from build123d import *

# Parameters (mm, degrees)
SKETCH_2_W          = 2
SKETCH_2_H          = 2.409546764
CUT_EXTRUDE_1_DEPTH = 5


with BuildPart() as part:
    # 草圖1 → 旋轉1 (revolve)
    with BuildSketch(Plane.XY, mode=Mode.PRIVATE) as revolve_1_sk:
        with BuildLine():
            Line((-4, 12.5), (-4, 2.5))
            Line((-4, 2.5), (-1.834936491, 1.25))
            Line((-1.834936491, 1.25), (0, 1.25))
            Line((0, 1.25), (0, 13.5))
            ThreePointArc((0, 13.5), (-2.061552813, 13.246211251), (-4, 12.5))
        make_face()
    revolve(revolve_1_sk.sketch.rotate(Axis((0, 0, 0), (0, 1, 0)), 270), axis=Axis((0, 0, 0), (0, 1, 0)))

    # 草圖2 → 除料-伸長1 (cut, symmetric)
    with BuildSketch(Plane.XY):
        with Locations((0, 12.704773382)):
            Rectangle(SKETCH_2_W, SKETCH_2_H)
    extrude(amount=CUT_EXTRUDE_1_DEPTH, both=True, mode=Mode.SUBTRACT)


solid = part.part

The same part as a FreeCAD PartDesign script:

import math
import FreeCAD as App
import Part
import Sketcher
Q = App.Units.Quantity

doc = App.newDocument("Part")
body = doc.addObject("PartDesign::Body", "Body")

sketch1 = body.newObject("Sketcher::SketchObject", "Sketch")
sketch1.AttachmentSupport = (doc.getObject("XY_Plane"), [""])
sketch1.MapMode = "FlatFace"
sketch1.addGeometry([
    Part.LineSegment(App.Vector(-4, 12.5, 0), App.Vector(-4, 2.5, 0)),
    Part.LineSegment(App.Vector(-4, 2.5, 0), App.Vector(-1.834936, 1.25, 0)),
    Part.LineSegment(App.Vector(-1.834936, 1.25, 0), App.Vector(0, 1.25, 0)),
    Part.LineSegment(App.Vector(0, 1.25, 0), App.Vector(0, 13.5, 0)),
    Part.ArcOfCircle(Part.Circle(App.Vector(0, 5, 0), App.Vector(0, 0, 1), 8.5), math.radians(90), math.radians(118.072487)),
], False)
sketch1.addConstraint([
    Sketcher.Constraint("Coincident", 0, 2, 1, 1),
    Sketcher.Constraint("Coincident", 1, 2, 2, 1),
    Sketcher.Constraint("Coincident", 2, 2, 3, 1),
    Sketcher.Constraint("Coincident", 3, 2, 4, 1),
    Sketcher.Constraint("Coincident", 4, 2, 0, 1),
    Sketcher.Constraint("Vertical", 0),
    Sketcher.Constraint("Horizontal", 2),
    Sketcher.Constraint("Vertical", 3),
    Sketcher.Constraint("PointOnObject", 4, 3, -2),
    Sketcher.Constraint("PointOnObject", 2, 2, -2),
    Sketcher.Constraint("Radius", 4, 8.5),
    Sketcher.Constraint("DistanceY", 0, 2, 0, 1, 10.0),
    Sketcher.Constraint("Angle", 1, Q("-30 deg")),
    Sketcher.Constraint("DistanceY", -1, 1, 4, 3, 5.0),
    Sketcher.Constraint("DistanceX", 0, 2, -1, 1, 4.0),
    Sketcher.Constraint("Distance", 1, 2.5),
])
revolution = body.newObject("PartDesign::Revolution", "Revolution")
revolution.Profile = sketch1
revolution.ReferenceAxis = (sketch1, ["V_Axis"])
revolution.Angle = 360

sketch2 = body.newObject("Sketcher::SketchObject", "Sketch001")
sketch2.AttachmentSupport = (doc.getObject("XY_Plane"), [""])
sketch2.MapMode = "FlatFace"
sketch2.addGeometry([
    Part.LineSegment(App.Vector(-1, 13.909547, 0), App.Vector(-1, 11.5, 0)),
    Part.LineSegment(App.Vector(-1, 11.5, 0), App.Vector(1, 11.5, 0)),
    Part.LineSegment(App.Vector(1, 11.5, 0), App.Vector(1, 13.909547, 0)),
    Part.LineSegment(App.Vector(1, 13.909547, 0), App.Vector(-1, 13.909547, 0)),
], False)
sketch2.addConstraint([
    Sketcher.Constraint("Coincident", 0, 2, 1, 1),
    Sketcher.Constraint("Coincident", 1, 2, 2, 1),
    Sketcher.Constraint("Coincident", 2, 2, 3, 1),
    Sketcher.Constraint("Coincident", 3, 2, 0, 1),
    Sketcher.Constraint("Vertical", 0),
    Sketcher.Constraint("Horizontal", 1),
    Sketcher.Constraint("Vertical", 2),
    Sketcher.Constraint("Horizontal", 3),
    Sketcher.Constraint("DistanceX", 1, 1, 1, 2, 2.0),
    Sketcher.Constraint("DistanceX", 0, 2, -1, 1, 1.0),
    Sketcher.Constraint("DistanceY", -1, 1, 0, 2, 11.5),
    Sketcher.Constraint("DistanceY", 0, 2, 0, 1, 2.409547),
])
pocket1 = body.newObject("PartDesign::Pocket", "Pocket")
pocket1.Profile = sketch2
pocket1.Length = 10
pocket1.Midplane = True

doc.recompute()
